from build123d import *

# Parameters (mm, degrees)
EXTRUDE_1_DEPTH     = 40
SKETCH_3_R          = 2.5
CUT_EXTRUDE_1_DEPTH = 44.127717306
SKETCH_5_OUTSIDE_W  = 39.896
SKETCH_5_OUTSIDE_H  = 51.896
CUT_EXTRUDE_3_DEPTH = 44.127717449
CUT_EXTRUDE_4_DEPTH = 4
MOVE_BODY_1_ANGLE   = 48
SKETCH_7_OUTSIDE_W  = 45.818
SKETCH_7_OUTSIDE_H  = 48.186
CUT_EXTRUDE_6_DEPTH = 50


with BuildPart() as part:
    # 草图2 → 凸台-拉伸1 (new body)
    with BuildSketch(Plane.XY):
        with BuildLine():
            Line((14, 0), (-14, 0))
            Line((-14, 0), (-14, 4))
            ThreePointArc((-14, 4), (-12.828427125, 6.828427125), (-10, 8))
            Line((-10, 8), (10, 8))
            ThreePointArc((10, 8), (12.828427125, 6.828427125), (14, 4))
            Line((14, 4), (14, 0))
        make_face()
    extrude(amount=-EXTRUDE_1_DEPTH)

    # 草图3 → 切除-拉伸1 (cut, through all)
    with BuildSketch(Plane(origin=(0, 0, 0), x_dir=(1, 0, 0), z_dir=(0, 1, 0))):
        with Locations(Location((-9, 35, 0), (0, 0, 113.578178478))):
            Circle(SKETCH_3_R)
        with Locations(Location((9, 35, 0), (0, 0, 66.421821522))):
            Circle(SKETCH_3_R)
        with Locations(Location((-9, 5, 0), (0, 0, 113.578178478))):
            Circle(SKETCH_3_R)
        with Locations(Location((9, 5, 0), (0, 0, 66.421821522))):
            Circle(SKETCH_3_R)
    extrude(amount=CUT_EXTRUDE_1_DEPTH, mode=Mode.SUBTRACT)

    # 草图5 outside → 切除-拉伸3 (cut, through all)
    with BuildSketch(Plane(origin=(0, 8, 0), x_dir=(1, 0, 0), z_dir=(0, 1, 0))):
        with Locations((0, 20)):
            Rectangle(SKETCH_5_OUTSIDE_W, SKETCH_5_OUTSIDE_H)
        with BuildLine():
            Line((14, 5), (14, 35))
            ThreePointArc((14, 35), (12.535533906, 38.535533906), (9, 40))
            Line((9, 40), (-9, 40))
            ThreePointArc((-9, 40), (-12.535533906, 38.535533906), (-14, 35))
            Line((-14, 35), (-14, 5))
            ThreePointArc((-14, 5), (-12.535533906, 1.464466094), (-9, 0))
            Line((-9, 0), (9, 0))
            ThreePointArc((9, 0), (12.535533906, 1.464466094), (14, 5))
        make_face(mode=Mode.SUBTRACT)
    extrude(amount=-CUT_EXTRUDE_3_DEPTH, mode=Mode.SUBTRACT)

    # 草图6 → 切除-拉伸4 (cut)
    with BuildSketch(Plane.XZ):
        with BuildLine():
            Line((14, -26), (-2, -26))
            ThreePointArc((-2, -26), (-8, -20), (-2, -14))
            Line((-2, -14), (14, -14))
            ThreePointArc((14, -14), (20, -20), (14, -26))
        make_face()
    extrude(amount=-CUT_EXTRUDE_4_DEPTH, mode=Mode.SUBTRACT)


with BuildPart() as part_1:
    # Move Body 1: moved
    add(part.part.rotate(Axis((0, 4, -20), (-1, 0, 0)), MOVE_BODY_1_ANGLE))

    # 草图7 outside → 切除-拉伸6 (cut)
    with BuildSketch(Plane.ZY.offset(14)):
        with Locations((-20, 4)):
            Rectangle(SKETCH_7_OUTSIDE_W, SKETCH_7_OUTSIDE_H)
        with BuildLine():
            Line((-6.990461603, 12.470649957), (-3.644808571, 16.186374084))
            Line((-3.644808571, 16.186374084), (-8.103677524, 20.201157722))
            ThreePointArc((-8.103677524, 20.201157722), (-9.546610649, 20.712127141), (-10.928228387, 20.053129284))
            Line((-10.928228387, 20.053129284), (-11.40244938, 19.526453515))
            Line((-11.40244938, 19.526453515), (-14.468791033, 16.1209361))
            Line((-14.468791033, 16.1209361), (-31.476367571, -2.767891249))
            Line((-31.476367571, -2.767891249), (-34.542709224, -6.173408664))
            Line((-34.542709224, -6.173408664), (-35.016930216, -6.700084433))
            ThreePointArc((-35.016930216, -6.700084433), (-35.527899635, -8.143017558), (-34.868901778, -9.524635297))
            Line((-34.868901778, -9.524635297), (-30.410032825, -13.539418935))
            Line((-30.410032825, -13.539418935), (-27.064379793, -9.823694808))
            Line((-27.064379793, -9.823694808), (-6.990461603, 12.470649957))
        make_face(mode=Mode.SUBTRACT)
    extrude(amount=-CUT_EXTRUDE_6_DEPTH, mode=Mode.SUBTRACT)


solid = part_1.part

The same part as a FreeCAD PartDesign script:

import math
import FreeCAD as App
import Part
import Sketcher

V = App.Vector
Q = App.Units.Quantity


def add_polygon(sketch, points):
    """Adds a closed chain of lines whose ends are joined by coincident constraints."""
    first, n = sketch.GeometryCount, len(points)
    for a, b in zip(points, points[1:] + points[:1]):
        sketch.addGeometry(Part.LineSegment(App.Vector(*a, 0), App.Vector(*b, 0)), False)
    for i in range(n):
        sketch.addConstraint(Sketcher.Constraint("Coincident", first + i, 2, first + (i + 1) % n, 1))

doc = App.newDocument("Part")
body = doc.addObject("PartDesign::Body", "Body")

# Sketch on XY plane
sketch1 = body.newObject("Sketcher::SketchObject", "Sketch")
sketch1.AttachmentSupport = (doc.getObject("XY_Plane"), [""])
sketch1.MapMode = "FlatFace"
sketch1.addGeometry(Part.LineSegment(V(-14, 0, 0), V(14, 0, 0)), False)
sketch1.addGeometry(Part.LineSegment(V(14, 0, 0), V(14, 4, 0)), False)
sketch1.addGeometry(Part.ArcOfCircle(Part.Circle(V(10, 4, 0), V(0, 0, 1), 4), math.radians(0), math.radians(90)), False)
sketch1.addGeometry(Part.LineSegment(V(10, 8, 0), V(-10, 8, 0)), False)
sketch1.addGeometry(Part.ArcOfCircle(Part.Circle(V(-10, 4, 0), V(0, 0, 1), 4), math.radians(90), math.radians(180)), False)
sketch1.addGeometry(Part.LineSegment(V(-14, 4, 0), V(-14, 0, 0)), False)
sketch1.addConstraint(Sketcher.Constraint("Coincident", 0, 2, 1, 1))
sketch1.addConstraint(Sketcher.Constraint("Tangent", 1, 2, 2, 1))
sketch1.addConstraint(Sketcher.Constraint("Tangent", 2, 2, 3, 1))
sketch1.addConstraint(Sketcher.Constraint("Tangent", 3, 2, 4, 1))
sketch1.addConstraint(Sketcher.Constraint("Tangent", 4, 2, 5, 1))
sketch1.addConstraint(Sketcher.Constraint("Coincident", 5, 2, 0, 1))
sketch1.addConstraint(Sketcher.Constraint("Horizontal", 0))
sketch1.addConstraint(Sketcher.Constraint("Vertical", 1))
sketch1.addConstraint(Sketcher.Constraint("Horizontal", 3))
sketch1.addConstraint(Sketcher.Constraint("Vertical", 5))
sketch1.addConstraint(Sketcher.Constraint("Equal", 2, 4))
sketch1.addConstraint(Sketcher.Constraint("Symmetric", 0, 2, 5, 2, -1, 1))
sketch1.addConstraint(Sketcher.Constraint("Radius", 2, Q("4 mm")))
sketch1.addConstraint(Sketcher.Constraint("DistanceX", 0, 1, 0, 2, Q("28 mm")))
sketch1.addConstraint(Sketcher.Constraint("DistanceY", 1, 1, 1, 2, Q("4 mm")))
pad1 = body.newObject("PartDesign::Pad", "Pad")
pad1.Profile = sketch1
pad1.Length = 40
pad1.Reversed = True

# Sketch on XZ plane
sketch2 = body.newObject("Sketcher::SketchObject", "Sketch001")
sketch2.AttachmentSupport = (doc.getObject("XZ_Plane"), [""])
sketch2.MapMode = "FlatFace"
sketch2.addGeometry(Part.Circle(V(-9, -35, 0), V(0, 0, 1), 2.5), False)
sketch2.addGeometry(Part.Circle(V(9, -35, 0), V(0, 0, 1), 2.5), False)
sketch2.addGeometry(Part.Circle(V(-9, -5, 0), V(0, 0, 1), 2.5), False)
sketch2.addGeometry(Part.Circle(V(9, -5, 0), V(0, 0, 1), 2.5), False)
sketch2.addConstraint(Sketcher.Constraint("Equal", 0, 1))
sketch2.addConstraint(Sketcher.Constraint("Equal", 1, 2))
sketch2.addConstraint(Sketcher.Constraint("Equal", 2, 3))
sketch2.addConstraint(Sketcher.Constraint("Symmetric", 0, 3, 1, 3, -2))
sketch2.addConstraint(Sketcher.Constraint("Symmetric", 2, 3, 3, 3, -2))
sketch2.addConstraint(Sketcher.Constraint("Vertical", 0, 3, 2, 3))
sketch2.addConstraint(Sketcher.Constraint("Diameter", 0, Q("5 mm")))
sketch2.addConstraint(Sketcher.Constraint("DistanceX", 0, 3, -1, 1, Q("9 mm")))
sketch2.addConstraint(Sketcher.Constraint("DistanceY", 0, 3, -1, 1, Q("35 mm")))
sketch2.addConstraint(Sketcher.Constraint("DistanceY", 2, 3, -1, 1, Q("5 mm")))
pocket1 = body.newObject("PartDesign::Pocket", "Pocket")
pocket1.Profile = sketch2
pocket1.Type = "ThroughAll"

# Sketch on XZ plane
sketch3 = body.newObject("Sketcher::SketchObject", "Sketch002")
sketch3.AttachmentSupport = (doc.getObject("XZ_Plane"), [""])
sketch3.MapMode = "FlatFace"
sketch3.AttachmentOffset = App.Placement(V(0, 0, -8), App.Rotation())
add_polygon(sketch3, [(-19.948, -45.948), (-19.948, 5.948), (19.948, 5.948), (19.948, -45.948)])  # lines 0-3
sketch3.addGeometry(Part.LineSegment(V(14, -35, 0), V(14, -5, 0)), False)  # 4
sketch3.addGeometry(Part.ArcOfCircle(Part.Circle(V(9, -5, 0), V(0, 0, 1), 5), math.radians(0), math.radians(90)), False)  # 5
sketch3.addGeometry(Part.LineSegment(V(9, 0, 0), V(-9, 0, 0)), False)  # 6
sketch3.addGeometry(Part.ArcOfCircle(Part.Circle(V(-9, -5, 0), V(0, 0, 1), 5), math.radians(90), math.radians(180)), False)  # 7
sketch3.addGeometry(Part.LineSegment(V(-14, -5, 0), V(-14, -35, 0)), False)  # 8
sketch3.addGeometry(Part.ArcOfCircle(Part.Circle(V(-9, -35, 0), V(0, 0, 1), 5), math.radians(180), math.radians(270)), False)  # 9
sketch3.addGeometry(Part.LineSegment(V(-9, -40, 0), V(9, -40, 0)), False)  # 10
sketch3.addGeometry(Part.ArcOfCircle(Part.Circle(V(9, -35, 0), V(0, 0, 1), 5), math.radians(-90), math.radians(0)), False)  # 11
sketch3.addConstraint(Sketcher.Constraint("Tangent", 4, 2, 5, 1))
sketch3.addConstraint(Sketcher.Constraint("Tangent", 5, 2, 6, 1))
sketch3.addConstraint(Sketcher.Constraint("Tangent", 6, 2, 7, 1))
sketch3.addConstraint(Sketcher.Constraint("Tangent", 7, 2, 8, 1))
sketch3.addConstraint(Sketcher.Constraint("Tangent", 8, 2, 9, 1))
sketch3.addConstraint(Sketcher.Constraint("Tangent", 9, 2, 10, 1))
sketch3.addConstraint(Sketcher.Constraint("Tangent", 10, 2, 11, 1))
sketch3.addConstraint(Sketcher.Constraint("Tangent", 11, 2, 4, 1))
sketch3.addConstraint(Sketcher.Constraint("Vertical", 0))
sketch3.addConstraint(Sketcher.Constraint("Horizontal", 1))
sketch3.addConstraint(Sketcher.Constraint("Vertical", 2))
sketch3.addConstraint(Sketcher.Constraint("Horizontal", 3))
sketch3.addConstraint(Sketcher.Constraint("Vertical", 4))
sketch3.addConstraint(Sketcher.Constraint("Horizontal", 6))
sketch3.addConstraint(Sketcher.Constraint("Vertical", 8))
sketch3.addConstraint(Sketcher.Constraint("Horizontal", 10))
sketch3.addConstraint(Sketcher.Constraint("Equal", 5, 7))
sketch3.addConstraint(Sketcher.Constraint("Equal", 7, 9))
sketch3.addConstraint(Sketcher.Constraint("Equal", 9, 11))
sketch3.addConstraint(Sketcher.Constraint("Symmetric", 5, 2, 6, 2, -1, 1))
sketch3.addConstraint(Sketcher.Constraint("Radius", 5, Q("5 mm")))
sketch3.addConstraint(Sketcher.Constraint("DistanceX", 6, 2, 6, 1, Q("18 mm")))
sketch3.addConstraint(Sketcher.Constraint("DistanceY", 4, 1, 4, 2, Q("30 mm")))
sketch3.addConstraint(Sketcher.Constraint("DistanceX", 1, 1, 1, 2, Q("39.896 mm")))
sketch3.addConstraint(Sketcher.Constraint("DistanceY", 0, 1, 0, 2, Q("51.896 mm")))
sketch3.addConstraint(Sketcher.Constraint("DistanceX", 0, 2, -1, 1, Q("19.948 mm")))
sketch3.addConstraint(Sketcher.Constraint("DistanceY", -1, 1, 0, 2, Q("5.948 mm")))
pocket2 = body.newObject("PartDesign::Pocket", "Pocket001")
pocket2.Profile = sketch3
pocket2.Type = "ThroughAll"
pocket2.Reversed = True

# Sketch on XZ plane
sketch4 = body.newObject("Sketcher::SketchObject", "Sketch003")
sketch4.AttachmentSupport = (doc.getObject("XZ_Plane"), [""])
sketch4.MapMode = "FlatFace"
sketch4.addGeometry(Part.LineSegment(V(-2, -26, 0), V(14, -26, 0)), False)
sketch4.addGeometry(Part.ArcOfCircle(Part.Circle(V(14, -20, 0), V(0, 0, 1), 6), math.radians(-90), math.radians(90)), False)
sketch4.addGeometry(Part.LineSegment(V(14, -14, 0), V(-2, -14, 0)), False)
sketch4.addGeometry(Part.ArcOfCircle(Part.Circle(V(-2, -20, 0), V(0, 0, 1), 6), math.radians(90), math.radians(270)), False)
sketch4.addConstraint(Sketcher.Constraint("Tangent", 0, 2, 1, 1))
sketch4.addConstraint(Sketcher.Constraint("Tangent", 1, 2, 2, 1))
sketch4.addConstraint(Sketcher.Constraint("Tangent", 2, 2, 3, 1))
sketch4.addConstraint(Sketcher.Constraint("Tangent", 3, 2, 0, 1))
sketch4.addConstraint(Sketcher.Constraint("Horizontal", 0))
sketch4.addConstraint(Sketcher.Constraint("Horizontal", 2))
sketch4.addConstraint(Sketcher.Constraint("Radius", 1, Q("6 mm")))
sketch4.addConstraint(Sketcher.Constraint("DistanceX", 0, 1, 0, 2, Q("16 mm")))
sketch4.addConstraint(Sketcher.Constraint("DistanceX", -1, 1, 1, 3, Q("14 mm")))
sketch4.addConstraint(Sketcher.Constraint("DistanceY", 1, 3, -1, 1, Q("20 mm")))
pocket3 = body.newObject("PartDesign::Pocket", "Pocket002")
pocket3.Profile = sketch4
pocket3.Length = 4
body2 = doc.addObject("PartDesign::Body", "Body001")
doc.recompute()

body.Placement = App.Placement(V(0, 16.186374, -3.644809), App.Rotation(V(-1, 0, 0), 48))
boolean = body2.newObject("PartDesign::Boolean", "Boolean")
boolean.Type = "Fuse"
boolean.addObjects([body])

# Sketch on YZ plane
sketch5 = body2.newObject("Sketcher::SketchObject", "Sketch004")
sketch5.AttachmentSupport = (doc.getObject("YZ_Plane001"), [""])
sketch5.MapMode = "FlatFace"
sketch5.AttachmentOffset = App.Placement(V(0, 0, -14), App.Rotation())
add_polygon(sketch5, [(28.093, -42.909), (-20.093, -42.909), (-20.093, 2.909), (28.093, 2.909)])  # lines 0-3
sketch5.addGeometry(Part.LineSegment(V(16.186374, -3.644809, 0), V(12.47065, -6.990462, 0)), False)  # 4
sketch5.addGeometry(Part.LineSegment(V(12.47065, -6.990462, 0), V(-9.823695, -27.06438, 0)), False)  # 5
sketch5.addGeometry(Part.LineSegment(V(-9.823695, -27.06438, 0), V(-13.539419, -30.410033, 0)), False)  # 6
sketch5.addGeometry(Part.LineSegment(V(-13.539419, -30.410033, 0), V(-9.524635, -34.868902, 0)), False)  # 7
sketch5.addGeometry(Part.ArcOfCircle(Part.Circle(V(-8.038346, -33.530641, 0), V(0, 0, 1), 2), math.radians(-138), math.radians(-48)), False)  # 8
sketch5.addGeometry(Part.LineSegment(V(-6.700084, -35.01693, 0), V(-6.173409, -34.542709, 0)), False)  # 9
sketch5.addGeometry(Part.LineSegment(V(-6.173409, -34.542709, 0), V(-2.767891, -31.476368, 0)), False)  # 10
sketch5.addGeometry(Part.LineSegment(V(-2.767891, -31.476368, 0), V(16.120936, -14.468791, 0)), False)  # 11
sketch5.addGeometry(Part.LineSegment(V(16.120936, -14.468791, 0), V(19.526454, -11.402449, 0)), False)  # 12
sketch5.addGeometry(Part.LineSegment(V(19.526454, -11.402449, 0), V(20.053129, -10.928228, 0)), False)  # 13
sketch5.addGeometry(Part.ArcOfCircle(Part.Circle(V(18.714868, -9.441939, 0), V(0, 0, 1), 2), math.radians(-48), math.radians(42)), False)  # 14
sketch5.addGeometry(Part.LineSegment(V(20.201158, -8.103678, 0), V(16.186374, -3.644809, 0)), False)  # 15
sketch5.addConstraint(Sketcher.Constraint("Coincident", 4, 2, 5, 1))
sketch5.addConstraint(Sketcher.Constraint("Coincident", 5, 2, 6, 1))
sketch5.addConstraint(Sketcher.Constraint("Coincident", 6, 2, 7, 1))
sketch5.addConstraint(Sketcher.Constraint("Tangent", 7, 2, 8, 1))
sketch5.addConstraint(Sketcher.Constraint("Tangent", 8, 2, 9, 1))
sketch5.addConstraint(Sketcher.Constraint("Coincident", 9, 2, 10, 1))
sketch5.addConstraint(Sketcher.Constraint("Coincident", 10, 2, 11, 1))
sketch5.addConstraint(Sketcher.Constraint("Coincident", 11, 2, 12, 1))
sketch5.addConstraint(Sketcher.Constraint("Coincident", 12, 2, 13, 1))
sketch5.addConstraint(Sketcher.Constraint("Tangent", 13, 2, 14, 1))
sketch5.addConstraint(Sketcher.Constraint("Tangent", 14, 2, 15, 1))
sketch5.addConstraint(Sketcher.Constraint("Coincident", 15, 2, 4, 1))
sketch5.addConstraint(Sketcher.Constraint("Horizontal", 0))
sketch5.addConstraint(Sketcher.Constraint("Vertical", 1))
sketch5.addConstraint(Sketcher.Constraint("Horizontal", 2))
sketch5.addConstraint(Sketcher.Constraint("Vertical", 3))
sketch5.addConstraint(Sketcher.Constraint("Equal", 8, 14))
sketch5.addConstraint(Sketcher.Constraint("Parallel", 4, 5))
sketch5.addConstraint(Sketcher.Constraint("Parallel", 5, 6))
sketch5.addConstraint(Sketcher.Constraint("Perpendicular", 6, 7))
sketch5.addConstraint(Sketcher.Constraint("Perpendicular", 7, 9))
sketch5.addConstraint(Sketcher.Constraint("Parallel", 9, 10))
sketch5.addConstraint(Sketcher.Constraint("Parallel", 10, 11))
sketch5.addConstraint(Sketcher.Constraint("Parallel", 11, 12))
sketch5.addConstraint(Sketcher.Constraint("Parallel", 12, 13))
sketch5.addConstraint(Sketcher.Constraint("Perpendicular", 13, 15))
sketch5.addConstraint(Sketcher.Constraint("Equal", 4, 6))
sketch5.addConstraint(Sketcher.Constraint("Equal", 10, 12))
sketch5.addConstraint(Sketcher.Constraint("Equal", 9, 13))
sketch5.addConstraint(Sketcher.Constraint("Radius", 8, Q("2 mm")))
sketch5.addConstraint(Sketcher.Constraint("Angle", 4, Q("-138 deg")))
sketch5.addConstraint(Sketcher.Constraint("Distance", 4, Q("5 mm")))
sketch5.addConstraint(Sketcher.Constraint("Distance", 5, Q("30 mm")))
sketch5.addConstraint(Sketcher.Constraint("Distance", 7, Q("6 mm")))
sketch5.addConstraint(Sketcher.Constraint("DistanceX", 0, 2, 0, 1, Q("48.186 mm")))
sketch5.addConstraint(Sketcher.Constraint("DistanceY", 1, 1, 1, 2, Q("45.818 mm")))
sketch5.addConstraint(Sketcher.Constraint("DistanceX", 0, 2, -1, 1, Q("20.093 mm")))
sketch5.addConstraint(Sketcher.Constraint("DistanceY", 0, 2, -1, 1, Q("42.909 mm")))
sketch5.addConstraint(Sketcher.Constraint("DistanceY", 7, 2, -1, 1, Q("34.868902 mm")))
sketch5.addConstraint(Sketcher.Constraint("DistanceX", -1, 1, 14, 3, Q("18.714868 mm")))
sketch5.addConstraint(Sketcher.Constraint("DistanceX", 9, 2, -1, 1, Q("6.173409 mm")))
sketch5.addConstraint(Sketcher.Constraint("DistanceX", 10, 2, -1, 1, Q("2.767891 mm")))
pocket4 = body2.newObject("PartDesign::Pocket", "Pocket003")
pocket4.Profile = sketch5
pocket4.Length = 50
pocket4.Reversed = True

doc.recompute()
